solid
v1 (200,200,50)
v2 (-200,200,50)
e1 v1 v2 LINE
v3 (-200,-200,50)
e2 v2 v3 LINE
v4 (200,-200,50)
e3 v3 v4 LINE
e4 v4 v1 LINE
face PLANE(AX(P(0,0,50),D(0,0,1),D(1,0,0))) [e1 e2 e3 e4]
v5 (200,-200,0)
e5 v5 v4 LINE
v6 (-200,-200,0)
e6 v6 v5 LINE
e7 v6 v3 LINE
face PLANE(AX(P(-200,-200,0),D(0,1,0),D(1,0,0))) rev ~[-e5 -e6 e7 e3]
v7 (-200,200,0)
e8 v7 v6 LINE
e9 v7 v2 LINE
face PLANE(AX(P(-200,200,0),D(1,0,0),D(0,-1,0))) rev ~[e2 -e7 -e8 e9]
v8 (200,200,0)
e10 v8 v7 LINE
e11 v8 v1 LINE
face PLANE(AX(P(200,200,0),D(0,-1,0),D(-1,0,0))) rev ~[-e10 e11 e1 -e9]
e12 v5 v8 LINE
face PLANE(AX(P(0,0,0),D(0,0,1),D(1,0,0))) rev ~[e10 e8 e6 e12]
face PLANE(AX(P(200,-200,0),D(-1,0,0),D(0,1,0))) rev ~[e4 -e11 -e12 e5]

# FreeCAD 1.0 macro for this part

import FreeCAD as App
import Part
import Sketcher
from FreeCAD import Vector
Q = App.Units.Quantity

doc = App.newDocument("Part")
body = doc.addObject("PartDesign::Body", "Body")

sketch1 = body.newObject("Sketcher::SketchObject", "Sketch")
sketch1.AttachmentSupport = (doc.getObject("XY_Plane"), [""])
sketch1.MapMode = "FlatFace"
sketch1.addGeometry([
    Part.LineSegment(Vector(200, -200, 0), Vector(200, 200, 0)),
    Part.LineSegment(Vector(200, 200, 0), Vector(-200, 200, 0)),
    Part.LineSegment(Vector(-200, 200, 0), Vector(-200, -200, 0)),
    Part.LineSegment(Vector(-200, -200, 0), Vector(200, -200, 0)),
], False)
sketch1.addConstraint([
    Sketcher.Constraint("Coincident", 0, 2, 1, 1),
    Sketcher.Constraint("Coincident", 1, 2, 2, 1),
    Sketcher.Constraint("Coincident", 2, 2, 3, 1),
    Sketcher.Constraint("Coincident", 3, 2, 0, 1),
    Sketcher.Constraint("Vertical", 0),
    Sketcher.Constraint("Horizontal", 1),
    Sketcher.Constraint("Vertical", 2),
    Sketcher.Constraint("Horizontal", 3),
    Sketcher.Constraint("Symmetric", 0, 2, 2, 2, -1, 1),
    Sketcher.Constraint("Equal", 3, 0),
    Sketcher.Constraint("DistanceX", 1, 2, 1, 1, Q("400 mm")),
])
pad1 = body.newObject("PartDesign::Pad", "Pad")
pad1.Profile = sketch1
pad1.Length = 50

doc.recompute()
